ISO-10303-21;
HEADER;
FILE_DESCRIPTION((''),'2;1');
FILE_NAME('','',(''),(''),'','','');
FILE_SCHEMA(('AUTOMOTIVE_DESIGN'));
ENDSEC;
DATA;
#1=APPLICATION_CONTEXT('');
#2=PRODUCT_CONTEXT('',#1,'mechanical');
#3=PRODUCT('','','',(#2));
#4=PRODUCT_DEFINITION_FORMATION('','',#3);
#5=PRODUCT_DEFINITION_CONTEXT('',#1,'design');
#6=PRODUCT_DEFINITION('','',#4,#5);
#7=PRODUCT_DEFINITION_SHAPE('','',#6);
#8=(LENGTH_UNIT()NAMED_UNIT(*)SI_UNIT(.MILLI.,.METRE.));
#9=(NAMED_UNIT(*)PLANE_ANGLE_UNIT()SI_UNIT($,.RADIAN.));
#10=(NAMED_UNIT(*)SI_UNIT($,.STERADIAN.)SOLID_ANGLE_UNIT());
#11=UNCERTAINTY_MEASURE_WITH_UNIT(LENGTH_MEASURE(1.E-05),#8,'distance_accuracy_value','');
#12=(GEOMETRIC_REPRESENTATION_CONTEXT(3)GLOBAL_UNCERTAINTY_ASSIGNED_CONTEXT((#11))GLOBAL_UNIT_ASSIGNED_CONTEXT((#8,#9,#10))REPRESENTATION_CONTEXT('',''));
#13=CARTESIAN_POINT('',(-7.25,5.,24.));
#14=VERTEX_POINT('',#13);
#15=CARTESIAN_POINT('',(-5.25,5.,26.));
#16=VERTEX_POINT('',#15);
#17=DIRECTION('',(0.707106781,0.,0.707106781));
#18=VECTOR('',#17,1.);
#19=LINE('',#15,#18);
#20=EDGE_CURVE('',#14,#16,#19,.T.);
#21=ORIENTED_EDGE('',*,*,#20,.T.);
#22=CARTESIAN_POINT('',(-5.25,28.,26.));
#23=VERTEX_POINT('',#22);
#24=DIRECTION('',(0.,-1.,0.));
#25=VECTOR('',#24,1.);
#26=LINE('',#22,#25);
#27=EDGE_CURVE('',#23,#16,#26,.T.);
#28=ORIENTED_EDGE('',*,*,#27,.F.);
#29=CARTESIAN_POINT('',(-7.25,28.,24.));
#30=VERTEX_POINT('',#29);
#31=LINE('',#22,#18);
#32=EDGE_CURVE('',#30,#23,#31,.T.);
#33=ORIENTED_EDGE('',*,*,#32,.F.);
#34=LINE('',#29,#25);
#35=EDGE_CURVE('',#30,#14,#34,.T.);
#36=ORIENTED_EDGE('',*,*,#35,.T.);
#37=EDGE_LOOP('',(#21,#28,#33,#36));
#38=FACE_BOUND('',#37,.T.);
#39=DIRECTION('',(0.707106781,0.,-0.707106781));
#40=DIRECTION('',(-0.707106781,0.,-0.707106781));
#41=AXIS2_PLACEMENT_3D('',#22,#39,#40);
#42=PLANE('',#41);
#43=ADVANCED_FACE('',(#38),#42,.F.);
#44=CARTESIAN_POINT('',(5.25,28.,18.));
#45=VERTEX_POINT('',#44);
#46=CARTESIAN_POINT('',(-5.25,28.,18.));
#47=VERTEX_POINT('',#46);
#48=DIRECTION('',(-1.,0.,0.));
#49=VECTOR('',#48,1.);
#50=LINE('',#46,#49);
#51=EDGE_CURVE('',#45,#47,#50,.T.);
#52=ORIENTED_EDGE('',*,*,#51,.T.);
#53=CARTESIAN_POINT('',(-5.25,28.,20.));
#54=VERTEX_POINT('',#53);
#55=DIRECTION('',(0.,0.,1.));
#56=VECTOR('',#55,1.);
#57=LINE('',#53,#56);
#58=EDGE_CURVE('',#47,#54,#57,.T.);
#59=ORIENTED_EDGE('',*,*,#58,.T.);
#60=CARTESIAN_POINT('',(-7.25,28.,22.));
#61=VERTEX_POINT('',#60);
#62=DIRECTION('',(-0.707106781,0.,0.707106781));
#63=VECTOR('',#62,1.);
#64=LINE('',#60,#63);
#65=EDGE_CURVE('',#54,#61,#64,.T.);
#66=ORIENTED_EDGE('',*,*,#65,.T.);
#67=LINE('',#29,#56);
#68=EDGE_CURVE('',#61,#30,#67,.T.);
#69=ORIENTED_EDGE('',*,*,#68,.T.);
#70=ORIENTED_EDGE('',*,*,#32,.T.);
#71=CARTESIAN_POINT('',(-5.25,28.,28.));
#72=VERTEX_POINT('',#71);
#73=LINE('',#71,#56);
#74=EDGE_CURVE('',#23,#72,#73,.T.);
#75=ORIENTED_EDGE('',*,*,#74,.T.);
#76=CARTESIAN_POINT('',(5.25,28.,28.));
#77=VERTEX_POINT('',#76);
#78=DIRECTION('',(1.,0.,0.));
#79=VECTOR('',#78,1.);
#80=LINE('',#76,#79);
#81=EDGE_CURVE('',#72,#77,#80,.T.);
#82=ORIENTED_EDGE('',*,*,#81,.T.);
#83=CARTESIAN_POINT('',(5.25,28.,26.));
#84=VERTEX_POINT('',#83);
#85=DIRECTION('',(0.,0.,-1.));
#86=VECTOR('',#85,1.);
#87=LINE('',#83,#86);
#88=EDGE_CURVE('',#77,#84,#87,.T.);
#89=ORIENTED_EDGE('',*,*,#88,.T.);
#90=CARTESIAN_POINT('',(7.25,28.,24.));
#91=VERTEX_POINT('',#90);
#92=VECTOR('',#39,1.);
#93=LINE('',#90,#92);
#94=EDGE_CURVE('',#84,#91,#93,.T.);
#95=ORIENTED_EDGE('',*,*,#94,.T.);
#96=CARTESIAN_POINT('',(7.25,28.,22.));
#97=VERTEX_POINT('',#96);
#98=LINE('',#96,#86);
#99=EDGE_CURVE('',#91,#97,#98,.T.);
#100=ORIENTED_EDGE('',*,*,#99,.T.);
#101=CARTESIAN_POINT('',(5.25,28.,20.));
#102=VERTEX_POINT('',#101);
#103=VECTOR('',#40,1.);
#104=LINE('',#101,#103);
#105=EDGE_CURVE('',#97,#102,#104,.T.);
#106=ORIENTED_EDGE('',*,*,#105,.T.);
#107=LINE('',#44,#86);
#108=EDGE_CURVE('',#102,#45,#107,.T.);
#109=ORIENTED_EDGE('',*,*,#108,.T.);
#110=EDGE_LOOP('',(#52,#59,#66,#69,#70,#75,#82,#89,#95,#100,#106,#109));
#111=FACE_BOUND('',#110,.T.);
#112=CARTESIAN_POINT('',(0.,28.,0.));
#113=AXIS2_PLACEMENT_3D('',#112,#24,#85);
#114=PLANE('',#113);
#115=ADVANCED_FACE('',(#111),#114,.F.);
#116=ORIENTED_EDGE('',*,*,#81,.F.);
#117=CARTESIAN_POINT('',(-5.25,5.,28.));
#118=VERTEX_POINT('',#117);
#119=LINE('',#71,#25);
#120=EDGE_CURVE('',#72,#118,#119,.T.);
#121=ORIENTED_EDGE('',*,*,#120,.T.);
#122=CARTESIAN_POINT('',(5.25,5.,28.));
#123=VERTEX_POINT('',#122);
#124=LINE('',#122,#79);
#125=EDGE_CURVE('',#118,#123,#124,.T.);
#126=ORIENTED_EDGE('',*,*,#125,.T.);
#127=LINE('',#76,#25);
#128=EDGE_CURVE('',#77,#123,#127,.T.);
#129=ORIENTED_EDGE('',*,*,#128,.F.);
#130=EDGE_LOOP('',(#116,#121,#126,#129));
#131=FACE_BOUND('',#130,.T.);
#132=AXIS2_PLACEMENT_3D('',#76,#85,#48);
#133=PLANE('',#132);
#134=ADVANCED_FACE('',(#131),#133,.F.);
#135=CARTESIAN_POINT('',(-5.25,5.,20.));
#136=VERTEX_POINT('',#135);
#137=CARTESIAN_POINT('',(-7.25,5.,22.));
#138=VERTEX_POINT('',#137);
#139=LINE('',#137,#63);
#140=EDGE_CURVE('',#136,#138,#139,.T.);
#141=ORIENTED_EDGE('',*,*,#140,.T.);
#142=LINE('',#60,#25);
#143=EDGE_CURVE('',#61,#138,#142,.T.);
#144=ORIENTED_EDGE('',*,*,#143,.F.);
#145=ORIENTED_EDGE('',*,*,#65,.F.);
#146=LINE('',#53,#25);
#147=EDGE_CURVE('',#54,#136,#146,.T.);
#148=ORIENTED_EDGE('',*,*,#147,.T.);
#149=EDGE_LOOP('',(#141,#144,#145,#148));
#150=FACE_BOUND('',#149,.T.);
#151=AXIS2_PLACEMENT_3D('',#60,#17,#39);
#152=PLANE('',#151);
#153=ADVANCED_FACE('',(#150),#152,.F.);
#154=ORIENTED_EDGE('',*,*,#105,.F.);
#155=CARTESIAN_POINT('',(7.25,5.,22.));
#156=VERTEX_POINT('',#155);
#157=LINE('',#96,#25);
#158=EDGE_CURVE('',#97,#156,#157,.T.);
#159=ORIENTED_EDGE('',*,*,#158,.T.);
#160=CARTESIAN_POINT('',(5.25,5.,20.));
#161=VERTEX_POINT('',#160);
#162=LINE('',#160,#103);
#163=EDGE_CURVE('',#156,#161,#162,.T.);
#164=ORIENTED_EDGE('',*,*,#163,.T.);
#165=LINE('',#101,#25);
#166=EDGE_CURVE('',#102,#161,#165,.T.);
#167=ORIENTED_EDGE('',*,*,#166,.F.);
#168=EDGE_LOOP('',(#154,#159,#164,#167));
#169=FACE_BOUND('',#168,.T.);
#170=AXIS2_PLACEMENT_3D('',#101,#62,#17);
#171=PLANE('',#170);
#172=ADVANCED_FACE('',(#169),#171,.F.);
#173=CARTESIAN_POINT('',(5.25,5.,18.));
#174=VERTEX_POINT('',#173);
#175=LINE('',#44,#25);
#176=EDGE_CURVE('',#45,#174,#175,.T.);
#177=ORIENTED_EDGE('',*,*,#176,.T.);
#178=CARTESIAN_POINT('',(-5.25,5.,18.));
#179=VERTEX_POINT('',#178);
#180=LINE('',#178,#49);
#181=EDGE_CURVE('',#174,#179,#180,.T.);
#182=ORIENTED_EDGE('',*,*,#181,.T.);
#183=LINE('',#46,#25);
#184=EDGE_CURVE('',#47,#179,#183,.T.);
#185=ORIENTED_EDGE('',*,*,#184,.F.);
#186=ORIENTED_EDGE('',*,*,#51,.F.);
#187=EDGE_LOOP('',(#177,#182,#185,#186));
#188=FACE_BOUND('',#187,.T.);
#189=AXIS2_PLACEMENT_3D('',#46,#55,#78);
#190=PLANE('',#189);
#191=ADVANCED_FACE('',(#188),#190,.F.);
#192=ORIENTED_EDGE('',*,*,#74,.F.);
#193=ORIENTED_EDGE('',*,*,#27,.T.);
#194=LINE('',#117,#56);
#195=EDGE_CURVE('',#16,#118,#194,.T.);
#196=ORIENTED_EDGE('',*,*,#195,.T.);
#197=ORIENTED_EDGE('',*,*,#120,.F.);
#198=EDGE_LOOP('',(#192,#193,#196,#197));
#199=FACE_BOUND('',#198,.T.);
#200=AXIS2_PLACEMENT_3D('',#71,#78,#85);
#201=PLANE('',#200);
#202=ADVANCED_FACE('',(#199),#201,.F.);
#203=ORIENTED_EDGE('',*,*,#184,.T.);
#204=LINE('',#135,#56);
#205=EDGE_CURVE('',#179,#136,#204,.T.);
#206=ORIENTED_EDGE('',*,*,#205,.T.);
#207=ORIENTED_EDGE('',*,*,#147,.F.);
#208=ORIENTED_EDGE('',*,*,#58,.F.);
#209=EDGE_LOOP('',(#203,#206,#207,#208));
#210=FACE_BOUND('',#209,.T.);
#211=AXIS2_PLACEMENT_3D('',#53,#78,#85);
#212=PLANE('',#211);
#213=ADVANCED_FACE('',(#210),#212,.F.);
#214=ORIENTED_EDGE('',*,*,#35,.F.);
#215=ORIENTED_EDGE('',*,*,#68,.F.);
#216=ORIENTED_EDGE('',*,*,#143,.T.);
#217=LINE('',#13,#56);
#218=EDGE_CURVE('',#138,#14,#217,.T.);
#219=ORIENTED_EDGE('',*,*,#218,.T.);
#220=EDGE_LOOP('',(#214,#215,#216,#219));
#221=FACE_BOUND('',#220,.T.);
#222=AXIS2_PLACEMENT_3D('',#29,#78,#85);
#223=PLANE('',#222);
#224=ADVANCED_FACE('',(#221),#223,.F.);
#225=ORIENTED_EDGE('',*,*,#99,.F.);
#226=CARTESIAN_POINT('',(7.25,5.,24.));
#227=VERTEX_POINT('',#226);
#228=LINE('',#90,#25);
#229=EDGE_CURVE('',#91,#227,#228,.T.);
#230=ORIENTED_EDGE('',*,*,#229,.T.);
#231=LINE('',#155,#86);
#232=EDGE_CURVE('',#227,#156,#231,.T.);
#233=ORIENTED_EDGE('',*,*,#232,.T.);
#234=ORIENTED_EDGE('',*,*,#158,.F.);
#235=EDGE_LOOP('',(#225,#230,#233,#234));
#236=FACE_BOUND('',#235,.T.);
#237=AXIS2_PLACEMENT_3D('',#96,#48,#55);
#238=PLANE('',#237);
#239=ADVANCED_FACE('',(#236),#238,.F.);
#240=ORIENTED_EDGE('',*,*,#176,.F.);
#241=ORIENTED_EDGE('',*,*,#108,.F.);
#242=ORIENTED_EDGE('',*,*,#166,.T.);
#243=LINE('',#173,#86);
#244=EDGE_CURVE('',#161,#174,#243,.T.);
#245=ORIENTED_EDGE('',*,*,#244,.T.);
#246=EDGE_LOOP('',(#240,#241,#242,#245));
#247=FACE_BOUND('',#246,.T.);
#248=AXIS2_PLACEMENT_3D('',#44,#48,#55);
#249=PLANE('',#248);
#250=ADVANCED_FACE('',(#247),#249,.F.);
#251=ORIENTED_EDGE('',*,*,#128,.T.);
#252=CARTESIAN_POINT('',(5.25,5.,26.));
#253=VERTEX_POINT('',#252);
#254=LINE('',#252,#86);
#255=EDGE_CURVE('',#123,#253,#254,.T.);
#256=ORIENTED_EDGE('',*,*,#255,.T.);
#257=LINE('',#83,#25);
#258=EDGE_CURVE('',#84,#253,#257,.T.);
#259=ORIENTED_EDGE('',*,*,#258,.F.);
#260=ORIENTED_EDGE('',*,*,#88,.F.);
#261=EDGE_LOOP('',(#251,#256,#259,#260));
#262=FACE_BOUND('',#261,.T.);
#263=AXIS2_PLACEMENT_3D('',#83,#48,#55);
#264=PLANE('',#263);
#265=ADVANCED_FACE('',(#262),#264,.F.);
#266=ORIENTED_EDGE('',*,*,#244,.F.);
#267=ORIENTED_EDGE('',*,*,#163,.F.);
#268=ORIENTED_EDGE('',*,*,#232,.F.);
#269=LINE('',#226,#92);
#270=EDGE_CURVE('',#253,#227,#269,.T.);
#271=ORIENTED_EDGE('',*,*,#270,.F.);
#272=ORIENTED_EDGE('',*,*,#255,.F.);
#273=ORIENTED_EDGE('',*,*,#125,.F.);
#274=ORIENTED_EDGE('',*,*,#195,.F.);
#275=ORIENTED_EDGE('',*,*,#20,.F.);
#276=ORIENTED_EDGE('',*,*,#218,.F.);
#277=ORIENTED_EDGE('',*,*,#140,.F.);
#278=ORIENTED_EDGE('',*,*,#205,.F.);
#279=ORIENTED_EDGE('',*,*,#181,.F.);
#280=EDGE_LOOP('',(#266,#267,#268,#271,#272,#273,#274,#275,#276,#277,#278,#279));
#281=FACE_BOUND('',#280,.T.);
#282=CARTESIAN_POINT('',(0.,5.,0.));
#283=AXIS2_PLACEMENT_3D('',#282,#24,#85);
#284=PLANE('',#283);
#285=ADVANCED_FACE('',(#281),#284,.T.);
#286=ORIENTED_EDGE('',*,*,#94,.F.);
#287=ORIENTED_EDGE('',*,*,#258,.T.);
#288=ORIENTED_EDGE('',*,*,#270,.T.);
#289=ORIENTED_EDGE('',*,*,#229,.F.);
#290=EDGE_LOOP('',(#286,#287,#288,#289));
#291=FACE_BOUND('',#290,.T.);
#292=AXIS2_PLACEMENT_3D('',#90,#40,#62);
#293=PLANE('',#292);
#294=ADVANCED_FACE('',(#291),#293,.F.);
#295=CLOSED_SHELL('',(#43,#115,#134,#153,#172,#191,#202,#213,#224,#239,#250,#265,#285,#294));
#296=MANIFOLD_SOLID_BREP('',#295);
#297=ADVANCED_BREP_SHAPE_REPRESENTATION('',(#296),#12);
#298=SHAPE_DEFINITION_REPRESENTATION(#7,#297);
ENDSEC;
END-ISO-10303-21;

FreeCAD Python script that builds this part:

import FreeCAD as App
import Part
import Sketcher

V = App.Vector
Q = App.Units.Quantity


def add_polygon(sketch, points):
    """Adds a closed chain of lines whose ends are joined by coincident constraints."""
    first, n = sketch.GeometryCount, len(points)
    for a, b in zip(points, points[1:] + points[:1]):
        sketch.addGeometry(Part.LineSegment(App.Vector(*a, 0), App.Vector(*b, 0)), False)
    for i in range(n):
        sketch.addConstraint(Sketcher.Constraint("Coincident", first + i, 2, first + (i + 1) % n, 1))

doc = App.newDocument("Part")
body = doc.addObject("PartDesign::Body", "Body")

# Sketch on XZ plane
sketch1 = doc.addObject("Sketcher::SketchObject", "Sketch")
body.addObject(sketch1)
sketch1.AttachmentSupport = (doc.XZ_Plane, [""])
sketch1.MapMode = "FlatFace"
sketch1.AttachmentOffset = App.Placement(V(0, 0, -5), App.Rotation())
add_polygon(sketch1, [(-5.25, 26), (-5.25, 28), (5.25, 28), (5.25, 26), (7.25, 24), (7.25, 22), (5.25, 20), (5.25, 18), (-5.25, 18), (-5.25, 20), (-7.25, 22), (-7.25, 24)])  # lines 0-11
sketch1.addConstraint([
    Sketcher.Constraint("Vertical", 0),
    Sketcher.Constraint("Horizontal", 1),
    Sketcher.Constraint("Vertical", 2),
    Sketcher.Constraint("Vertical", 4),
    Sketcher.Constraint("Vertical", 6),
    Sketcher.Constraint("Horizontal", 7),
    Sketcher.Constraint("Vertical", 8),
    Sketcher.Constraint("Vertical", 10),
    Sketcher.Constraint("Symmetric", 5, 2, 8, 2, -2),
    Sketcher.Constraint("Symmetric", 4, 2, 9, 2, -2),
    Sketcher.Constraint("Symmetric", 2, 2, 11, 2, -2),
    Sketcher.Constraint("Perpendicular", 3, 5),
    Sketcher.Constraint("Perpendicular", 5, 9),
    Sketcher.Constraint("Perpendicular", 9, 11),
    Sketcher.Constraint("Vertical", 2, 2, 5, 2),
    Sketcher.Constraint("Equal", 2, 4),
    Sketcher.Constraint("Equal", 4, 6),
    Sketcher.Constraint("DistanceY", 0, 1, 0, 2, Q("2 mm")),
    Sketcher.Constraint("DistanceX", 1, 1, 1, 2, Q("10.5 mm")),
    Sketcher.Constraint("DistanceY", -1, 1, 0, 2, Q("28 mm")),
    Sketcher.Constraint("DistanceY", -1, 1, 3, 2, Q("24 mm")),
])
pad1 = doc.addObject("PartDesign::Pad", "Pad")
body.addObject(pad1)
pad1.Profile = sketch1
pad1.Length = 23
pad1.Reversed = True

doc.recompute()
